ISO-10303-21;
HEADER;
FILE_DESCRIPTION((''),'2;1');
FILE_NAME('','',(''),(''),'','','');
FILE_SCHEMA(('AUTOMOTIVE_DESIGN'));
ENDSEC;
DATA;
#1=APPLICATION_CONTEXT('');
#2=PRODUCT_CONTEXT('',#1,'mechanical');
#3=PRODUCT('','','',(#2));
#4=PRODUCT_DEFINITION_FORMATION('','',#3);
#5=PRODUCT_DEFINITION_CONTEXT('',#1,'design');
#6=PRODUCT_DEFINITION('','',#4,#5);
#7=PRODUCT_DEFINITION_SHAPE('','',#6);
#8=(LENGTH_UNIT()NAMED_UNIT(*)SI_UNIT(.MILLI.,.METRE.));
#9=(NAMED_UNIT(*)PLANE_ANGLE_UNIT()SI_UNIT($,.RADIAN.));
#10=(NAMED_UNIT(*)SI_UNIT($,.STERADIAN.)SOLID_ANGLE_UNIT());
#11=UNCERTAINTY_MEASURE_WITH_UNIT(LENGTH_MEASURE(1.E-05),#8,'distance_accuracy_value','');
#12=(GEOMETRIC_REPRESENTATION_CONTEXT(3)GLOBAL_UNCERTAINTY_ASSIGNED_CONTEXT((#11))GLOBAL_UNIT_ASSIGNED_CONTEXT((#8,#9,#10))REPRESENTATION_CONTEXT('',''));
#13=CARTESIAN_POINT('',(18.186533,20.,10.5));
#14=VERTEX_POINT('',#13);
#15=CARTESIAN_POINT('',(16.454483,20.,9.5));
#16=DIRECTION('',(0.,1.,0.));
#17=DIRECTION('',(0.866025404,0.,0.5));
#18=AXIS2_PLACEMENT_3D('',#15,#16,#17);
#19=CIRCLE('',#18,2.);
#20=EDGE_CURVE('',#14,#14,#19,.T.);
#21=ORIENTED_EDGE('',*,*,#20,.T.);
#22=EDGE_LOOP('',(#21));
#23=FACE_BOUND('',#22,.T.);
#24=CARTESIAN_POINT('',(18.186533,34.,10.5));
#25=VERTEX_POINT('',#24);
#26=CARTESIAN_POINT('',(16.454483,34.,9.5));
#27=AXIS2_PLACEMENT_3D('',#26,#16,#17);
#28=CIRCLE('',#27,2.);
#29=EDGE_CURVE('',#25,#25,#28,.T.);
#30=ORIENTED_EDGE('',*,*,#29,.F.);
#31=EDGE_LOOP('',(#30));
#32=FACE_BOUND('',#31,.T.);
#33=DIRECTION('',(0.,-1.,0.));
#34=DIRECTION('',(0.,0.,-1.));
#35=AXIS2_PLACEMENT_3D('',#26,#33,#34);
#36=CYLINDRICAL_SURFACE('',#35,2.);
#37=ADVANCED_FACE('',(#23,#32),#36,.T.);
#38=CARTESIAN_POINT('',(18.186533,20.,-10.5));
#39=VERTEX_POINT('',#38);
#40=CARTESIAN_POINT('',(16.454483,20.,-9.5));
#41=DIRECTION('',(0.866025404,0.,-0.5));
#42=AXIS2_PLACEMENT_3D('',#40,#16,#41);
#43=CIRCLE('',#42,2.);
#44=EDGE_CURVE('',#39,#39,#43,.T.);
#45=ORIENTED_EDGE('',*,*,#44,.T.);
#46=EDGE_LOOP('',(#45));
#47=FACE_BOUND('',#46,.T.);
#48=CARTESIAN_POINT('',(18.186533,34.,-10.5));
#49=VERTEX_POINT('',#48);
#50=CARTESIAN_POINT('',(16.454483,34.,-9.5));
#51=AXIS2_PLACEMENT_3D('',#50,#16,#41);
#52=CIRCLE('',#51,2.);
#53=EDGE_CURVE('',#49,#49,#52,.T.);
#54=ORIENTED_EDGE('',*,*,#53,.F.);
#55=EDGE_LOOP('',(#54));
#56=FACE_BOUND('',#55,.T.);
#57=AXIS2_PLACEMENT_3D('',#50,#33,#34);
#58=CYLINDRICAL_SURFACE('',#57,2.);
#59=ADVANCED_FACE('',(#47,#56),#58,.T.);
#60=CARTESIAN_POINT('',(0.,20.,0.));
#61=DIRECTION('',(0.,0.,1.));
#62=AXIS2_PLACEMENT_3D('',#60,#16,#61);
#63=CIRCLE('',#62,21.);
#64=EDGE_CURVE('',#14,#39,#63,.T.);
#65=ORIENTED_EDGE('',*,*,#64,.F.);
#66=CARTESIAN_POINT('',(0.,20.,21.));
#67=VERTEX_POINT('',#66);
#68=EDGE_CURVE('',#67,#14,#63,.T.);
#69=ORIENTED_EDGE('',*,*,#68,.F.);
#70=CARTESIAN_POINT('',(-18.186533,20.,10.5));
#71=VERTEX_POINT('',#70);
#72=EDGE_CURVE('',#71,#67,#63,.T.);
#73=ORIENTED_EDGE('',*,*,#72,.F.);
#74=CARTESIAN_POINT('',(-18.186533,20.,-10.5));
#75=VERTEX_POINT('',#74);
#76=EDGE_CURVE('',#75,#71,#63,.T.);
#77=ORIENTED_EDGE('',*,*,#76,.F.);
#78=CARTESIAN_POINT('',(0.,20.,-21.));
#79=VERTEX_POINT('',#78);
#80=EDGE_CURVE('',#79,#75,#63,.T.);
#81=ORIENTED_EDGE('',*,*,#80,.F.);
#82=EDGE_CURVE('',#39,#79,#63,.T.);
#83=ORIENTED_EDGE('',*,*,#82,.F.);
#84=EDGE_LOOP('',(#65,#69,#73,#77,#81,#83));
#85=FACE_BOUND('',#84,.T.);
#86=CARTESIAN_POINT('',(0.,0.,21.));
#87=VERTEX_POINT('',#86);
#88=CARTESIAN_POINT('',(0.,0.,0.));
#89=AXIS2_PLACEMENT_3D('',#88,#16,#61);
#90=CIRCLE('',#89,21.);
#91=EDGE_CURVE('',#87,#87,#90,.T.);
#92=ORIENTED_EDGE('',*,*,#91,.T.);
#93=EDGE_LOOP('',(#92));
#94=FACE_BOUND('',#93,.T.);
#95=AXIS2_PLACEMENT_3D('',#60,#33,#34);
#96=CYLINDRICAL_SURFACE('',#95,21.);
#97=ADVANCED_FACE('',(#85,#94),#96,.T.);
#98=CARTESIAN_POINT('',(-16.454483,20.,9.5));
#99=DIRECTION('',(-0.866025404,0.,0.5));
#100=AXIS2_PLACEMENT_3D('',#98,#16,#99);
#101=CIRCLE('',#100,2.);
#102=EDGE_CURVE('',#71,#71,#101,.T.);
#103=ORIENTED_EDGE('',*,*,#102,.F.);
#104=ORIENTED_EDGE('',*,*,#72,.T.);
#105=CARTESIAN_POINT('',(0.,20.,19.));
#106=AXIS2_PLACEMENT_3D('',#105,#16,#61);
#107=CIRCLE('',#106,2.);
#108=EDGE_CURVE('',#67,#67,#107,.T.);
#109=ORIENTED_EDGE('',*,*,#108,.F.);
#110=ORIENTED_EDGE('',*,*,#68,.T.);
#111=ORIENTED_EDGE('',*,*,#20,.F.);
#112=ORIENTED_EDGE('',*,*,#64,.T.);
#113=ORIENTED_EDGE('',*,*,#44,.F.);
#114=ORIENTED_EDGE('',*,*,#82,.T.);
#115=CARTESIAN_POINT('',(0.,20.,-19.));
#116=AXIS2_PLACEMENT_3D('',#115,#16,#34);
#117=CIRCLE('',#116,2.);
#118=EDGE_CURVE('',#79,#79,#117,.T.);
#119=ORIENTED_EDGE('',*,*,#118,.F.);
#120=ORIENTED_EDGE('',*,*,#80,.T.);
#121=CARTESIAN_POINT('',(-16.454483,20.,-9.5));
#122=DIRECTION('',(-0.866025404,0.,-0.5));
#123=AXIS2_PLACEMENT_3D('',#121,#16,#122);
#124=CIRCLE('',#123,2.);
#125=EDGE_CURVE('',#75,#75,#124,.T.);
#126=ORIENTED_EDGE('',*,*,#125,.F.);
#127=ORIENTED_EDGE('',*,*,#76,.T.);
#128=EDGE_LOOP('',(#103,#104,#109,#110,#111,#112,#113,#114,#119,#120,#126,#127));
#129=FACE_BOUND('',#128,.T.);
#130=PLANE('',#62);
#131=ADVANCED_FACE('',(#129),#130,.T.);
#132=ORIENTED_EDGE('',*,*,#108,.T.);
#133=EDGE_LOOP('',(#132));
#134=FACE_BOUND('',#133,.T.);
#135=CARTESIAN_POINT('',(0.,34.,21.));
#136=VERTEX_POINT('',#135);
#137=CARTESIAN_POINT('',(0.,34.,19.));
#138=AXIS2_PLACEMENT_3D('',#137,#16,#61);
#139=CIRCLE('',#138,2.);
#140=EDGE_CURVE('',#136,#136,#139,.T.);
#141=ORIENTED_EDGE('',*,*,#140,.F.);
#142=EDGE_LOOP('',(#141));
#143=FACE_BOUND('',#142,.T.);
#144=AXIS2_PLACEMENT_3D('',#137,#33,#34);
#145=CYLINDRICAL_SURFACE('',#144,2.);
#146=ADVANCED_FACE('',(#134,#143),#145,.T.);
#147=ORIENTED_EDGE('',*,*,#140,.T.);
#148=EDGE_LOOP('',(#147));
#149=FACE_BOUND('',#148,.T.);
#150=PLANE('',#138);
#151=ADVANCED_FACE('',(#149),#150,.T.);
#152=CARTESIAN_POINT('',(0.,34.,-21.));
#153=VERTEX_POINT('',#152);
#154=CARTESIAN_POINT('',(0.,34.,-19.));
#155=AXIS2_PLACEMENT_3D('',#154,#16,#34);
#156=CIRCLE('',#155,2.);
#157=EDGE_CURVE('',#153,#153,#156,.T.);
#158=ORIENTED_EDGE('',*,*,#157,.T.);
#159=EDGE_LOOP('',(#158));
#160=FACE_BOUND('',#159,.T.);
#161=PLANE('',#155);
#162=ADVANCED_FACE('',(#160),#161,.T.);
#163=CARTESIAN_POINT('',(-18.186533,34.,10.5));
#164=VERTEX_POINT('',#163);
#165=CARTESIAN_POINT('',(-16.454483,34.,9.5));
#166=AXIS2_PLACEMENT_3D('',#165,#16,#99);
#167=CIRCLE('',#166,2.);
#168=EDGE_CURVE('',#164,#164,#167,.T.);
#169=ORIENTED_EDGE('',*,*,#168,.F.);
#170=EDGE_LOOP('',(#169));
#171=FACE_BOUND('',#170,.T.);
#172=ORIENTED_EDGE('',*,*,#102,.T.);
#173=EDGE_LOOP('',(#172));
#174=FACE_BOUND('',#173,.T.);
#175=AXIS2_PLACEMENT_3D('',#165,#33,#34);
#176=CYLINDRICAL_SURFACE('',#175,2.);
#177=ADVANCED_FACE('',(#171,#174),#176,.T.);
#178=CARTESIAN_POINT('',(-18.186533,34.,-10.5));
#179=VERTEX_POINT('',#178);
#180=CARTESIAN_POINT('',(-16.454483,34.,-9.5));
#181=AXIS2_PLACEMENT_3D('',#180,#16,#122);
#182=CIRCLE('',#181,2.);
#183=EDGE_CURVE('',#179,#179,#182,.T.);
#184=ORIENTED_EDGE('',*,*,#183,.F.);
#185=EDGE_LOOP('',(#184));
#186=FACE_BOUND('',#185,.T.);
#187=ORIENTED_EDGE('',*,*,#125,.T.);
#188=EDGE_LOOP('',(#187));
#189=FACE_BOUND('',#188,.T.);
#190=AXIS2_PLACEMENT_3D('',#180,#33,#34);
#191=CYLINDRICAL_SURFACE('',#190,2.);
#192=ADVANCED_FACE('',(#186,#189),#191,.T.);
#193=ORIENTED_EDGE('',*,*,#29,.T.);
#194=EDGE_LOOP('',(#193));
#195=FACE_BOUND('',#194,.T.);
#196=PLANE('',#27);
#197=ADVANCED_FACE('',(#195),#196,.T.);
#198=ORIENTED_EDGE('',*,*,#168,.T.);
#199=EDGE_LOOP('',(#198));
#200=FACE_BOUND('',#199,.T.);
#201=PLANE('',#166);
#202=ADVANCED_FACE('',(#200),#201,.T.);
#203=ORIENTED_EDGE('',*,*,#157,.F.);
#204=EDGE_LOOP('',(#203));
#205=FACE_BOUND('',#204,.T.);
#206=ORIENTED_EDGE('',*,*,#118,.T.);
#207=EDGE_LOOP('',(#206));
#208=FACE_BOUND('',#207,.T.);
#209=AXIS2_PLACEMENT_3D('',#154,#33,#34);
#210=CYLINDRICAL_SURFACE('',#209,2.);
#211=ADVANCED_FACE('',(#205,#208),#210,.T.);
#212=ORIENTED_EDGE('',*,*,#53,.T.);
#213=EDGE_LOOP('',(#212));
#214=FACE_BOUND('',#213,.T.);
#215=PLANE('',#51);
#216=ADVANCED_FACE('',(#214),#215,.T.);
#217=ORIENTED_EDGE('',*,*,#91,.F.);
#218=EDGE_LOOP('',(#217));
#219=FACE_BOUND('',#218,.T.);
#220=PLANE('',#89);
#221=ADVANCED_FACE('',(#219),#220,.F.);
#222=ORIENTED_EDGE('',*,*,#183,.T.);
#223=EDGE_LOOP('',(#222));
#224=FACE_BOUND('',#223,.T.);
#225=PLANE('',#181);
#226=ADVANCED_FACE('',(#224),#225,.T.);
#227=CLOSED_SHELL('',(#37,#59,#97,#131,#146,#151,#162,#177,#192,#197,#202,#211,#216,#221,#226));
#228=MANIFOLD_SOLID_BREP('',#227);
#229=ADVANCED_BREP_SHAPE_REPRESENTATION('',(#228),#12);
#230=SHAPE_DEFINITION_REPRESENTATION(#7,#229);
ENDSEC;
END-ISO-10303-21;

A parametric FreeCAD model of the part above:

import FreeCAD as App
import Part
import Sketcher

V = App.Vector
Q = App.Units.Quantity

doc = App.newDocument("Part")
body = doc.addObject("PartDesign::Body", "Body")

# Sketch on XZ plane
sketch1 = doc.addObject("Sketcher::SketchObject", "Sketch")
body.addObject(sketch1)
sketch1.AttachmentSupport = (doc.XZ_Plane, [""])
sketch1.MapMode = "FlatFace"
sketch1.addGeometry(Part.Circle(V(0, 0, 0), V(0, 0, 1), 21), False)
sketch1.addConstraint(Sketcher.Constraint("Coincident", 0, 3, -1, 1))
sketch1.addConstraint(Sketcher.Constraint("Diameter", 0, Q("42 mm")))
pad1 = doc.addObject("PartDesign::Pad", "Pad")
body.addObject(pad1)
pad1.Profile = sketch1
pad1.Length = 20
pad1.Reversed = True

# Sketch on XZ plane
sketch2 = doc.addObject("Sketcher::SketchObject", "Sketch001")
body.addObject(sketch2)
sketch2.AttachmentSupport = (doc.XZ_Plane, [""])
sketch2.MapMode = "FlatFace"
sketch2.AttachmentOffset = App.Placement(V(0, 0, -20), App.Rotation())
sketch2.addGeometry(Part.Circle(V(0, 19, 0), V(0, 0, 1), 2), False)
sketch2.addConstraint(Sketcher.Constraint("PointOnObject", 0, 3, -2))
sketch2.addConstraint(Sketcher.Constraint("Diameter", 0, Q("4 mm")))
sketch2.addConstraint(Sketcher.Constraint("DistanceY", -1, 1, 0, 3, Q("19 mm")))
pad2 = doc.addObject("PartDesign::Pad", "Pad001")
body.addObject(pad2)
pad2.Profile = sketch2
pad2.Length = 14
pad2.Reversed = True
doc.recompute()

polarpattern = doc.addObject("PartDesign::PolarPattern", "PolarPattern")
body.addObject(polarpattern)
polarpattern.Originals = [pad2]
polarpattern.Axis = (doc.Y_Axis, [""])
polarpattern.Angle = 360
polarpattern.Occurrences = 6
body.Tip = polarpattern

doc.recompute()
